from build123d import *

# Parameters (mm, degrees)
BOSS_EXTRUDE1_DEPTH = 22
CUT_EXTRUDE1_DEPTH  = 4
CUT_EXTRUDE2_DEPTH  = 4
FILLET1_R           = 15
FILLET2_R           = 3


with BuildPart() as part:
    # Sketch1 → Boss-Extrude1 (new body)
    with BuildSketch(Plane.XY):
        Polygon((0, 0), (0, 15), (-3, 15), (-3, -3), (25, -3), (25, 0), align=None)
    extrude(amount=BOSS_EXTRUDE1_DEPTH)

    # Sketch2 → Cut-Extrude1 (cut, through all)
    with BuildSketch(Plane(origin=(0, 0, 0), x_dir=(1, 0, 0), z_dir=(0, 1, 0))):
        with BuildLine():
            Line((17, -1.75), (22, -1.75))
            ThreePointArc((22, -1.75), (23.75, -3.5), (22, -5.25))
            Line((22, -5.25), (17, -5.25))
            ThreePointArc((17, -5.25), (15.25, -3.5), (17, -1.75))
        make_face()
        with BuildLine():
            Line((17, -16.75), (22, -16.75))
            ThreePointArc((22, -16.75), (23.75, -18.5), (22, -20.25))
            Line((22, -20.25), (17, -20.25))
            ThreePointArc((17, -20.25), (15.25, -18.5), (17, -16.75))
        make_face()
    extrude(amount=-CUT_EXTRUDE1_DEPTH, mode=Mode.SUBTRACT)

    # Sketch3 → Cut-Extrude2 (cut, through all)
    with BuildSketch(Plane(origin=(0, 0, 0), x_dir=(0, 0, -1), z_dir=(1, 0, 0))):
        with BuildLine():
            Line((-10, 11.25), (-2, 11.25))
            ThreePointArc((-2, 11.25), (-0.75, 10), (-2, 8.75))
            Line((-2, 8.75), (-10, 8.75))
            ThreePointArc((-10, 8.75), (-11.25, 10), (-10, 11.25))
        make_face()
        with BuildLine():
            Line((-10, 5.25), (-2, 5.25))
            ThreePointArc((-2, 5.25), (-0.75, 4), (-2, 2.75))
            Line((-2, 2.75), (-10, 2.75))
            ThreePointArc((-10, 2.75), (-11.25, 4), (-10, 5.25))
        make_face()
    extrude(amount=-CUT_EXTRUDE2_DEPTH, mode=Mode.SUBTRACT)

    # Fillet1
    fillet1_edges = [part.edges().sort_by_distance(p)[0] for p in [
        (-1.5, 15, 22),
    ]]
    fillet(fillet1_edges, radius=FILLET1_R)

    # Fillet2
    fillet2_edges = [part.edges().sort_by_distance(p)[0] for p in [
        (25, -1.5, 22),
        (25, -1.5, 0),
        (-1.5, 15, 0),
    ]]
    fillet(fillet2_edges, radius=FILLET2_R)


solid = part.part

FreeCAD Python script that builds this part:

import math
import FreeCAD as App
import Part
import Sketcher


def edges_at(feature, points):
    """Names of the edges that pass closest to the given points."""
    edges = feature.Shape.Edges
    near = lambda p: min(range(len(edges)), key=lambda i: edges[i].distToShape(Part.Vertex(*p))[0])
    return sorted({f"Edge{near(p) + 1}" for p in points})


def add_polygon(sketch, points):
    """Adds a closed chain of lines whose ends are joined by coincident constraints."""
    first, n = sketch.GeometryCount, len(points)
    for a, b in zip(points, points[1:] + points[:1]):
        sketch.addGeometry(Part.LineSegment(App.Vector(*a, 0), App.Vector(*b, 0)), False)
    for i in range(n):
        sketch.addConstraint(Sketcher.Constraint("Coincident", first + i, 2, first + (i + 1) % n, 1))

doc = App.newDocument("Part")
body = doc.addObject("PartDesign::Body", "Body")

# Sketch on XY plane
sketch1 = body.newObject("Sketcher::SketchObject", "Sketch")
sketch1.AttachmentSupport = (doc.getObject("XY_Plane"), [""])
sketch1.MapMode = "FlatFace"
add_polygon(sketch1, [(0, 0), (0, 15), (-3, 15), (-3, -3), (25, -3), (25, 0)])  # lines 0-5
sketch1.addConstraint([
    Sketcher.Constraint("Vertical", 0),
    Sketcher.Constraint("Horizontal", 1),
    Sketcher.Constraint("Vertical", 2),
    Sketcher.Constraint("Horizontal", 3),
    Sketcher.Constraint("Vertical", 4),
    Sketcher.Constraint("Horizontal", 5),
    Sketcher.Constraint("Coincident", 5, 2, -1, 1),
    Sketcher.Constraint("Equal", 1, 4),
    Sketcher.Constraint("DistanceX", 1, 2, 1, 1, 3.0),
    Sketcher.Constraint("DistanceX", 3, 1, 3, 2, 28.0),
    Sketcher.Constraint("DistanceY", 0, 1, 0, 2, 15.0),
])
pad1 = body.newObject("PartDesign::Pad", "Pad")
pad1.Profile = sketch1
pad1.Length = 22

# Sketch on XZ plane
sketch2 = body.newObject("Sketcher::SketchObject", "Sketch001")
sketch2.AttachmentSupport = (doc.getObject("XZ_Plane"), [""])
sketch2.MapMode = "FlatFace"
sketch2.addGeometry([
    Part.LineSegment(App.Vector(22, 1.8, 0), App.Vector(17, 1.8, 0)),  # 0
    Part.ArcOfCircle(Part.Circle(App.Vector(17, 3.5, 0), App.Vector(0, 0, 1), 1.8), math.radians(90), math.radians(270)),  # 1
    Part.LineSegment(App.Vector(17, 5.2, 0), App.Vector(22, 5.2, 0)),  # 2
    Part.ArcOfCircle(Part.Circle(App.Vector(22, 3.5, 0), App.Vector(0, 0, 1), 1.8), math.radians(-90), math.radians(90)),  # 3
    Part.LineSegment(App.Vector(22, 16.8, 0), App.Vector(17, 16.8, 0)),  # 4
    Part.ArcOfCircle(Part.Circle(App.Vector(17, 18.5, 0), App.Vector(0, 0, 1), 1.8), math.radians(90), math.radians(270)),  # 5
    Part.LineSegment(App.Vector(17, 20.2, 0), App.Vector(22, 20.2, 0)),  # 6
    Part.ArcOfCircle(Part.Circle(App.Vector(22, 18.5, 0), App.Vector(0, 0, 1), 1.8), math.radians(-90), math.radians(90)),  # 7
], False)
sketch2.addConstraint([
    Sketcher.Constraint("Tangent", 0, 2, 1, 2),
    Sketcher.Constraint("Tangent", 1, 1, 2, 1),
    Sketcher.Constraint("Tangent", 2, 2, 3, 2),
    Sketcher.Constraint("Tangent", 3, 1, 0, 1),
    Sketcher.Constraint("Tangent", 4, 2, 5, 2),
    Sketcher.Constraint("Tangent", 5, 1, 6, 1),
    Sketcher.Constraint("Tangent", 6, 2, 7, 2),
    Sketcher.Constraint("Tangent", 7, 1, 4, 1),
    Sketcher.Constraint("Horizontal", 0),
    Sketcher.Constraint("Horizontal", 2),
    Sketcher.Constraint("Horizontal", 4),
    Sketcher.Constraint("Horizontal", 6),
    Sketcher.Constraint("Equal", 3, 5),
    Sketcher.Constraint("Vertical", 1, 3, 5, 3),
    Sketcher.Constraint("Vertical", 3, 3, 7, 3),
    Sketcher.Constraint("DistanceX", 0, 2, 0, 1, 5.0),
    Sketcher.Constraint("Radius", 1, 1.75),
    Sketcher.Constraint("DistanceX", -1, 1, 1, 3, 17.0),
    Sketcher.Constraint("DistanceY", 1, 3, 5, 3, 15.0),
    Sketcher.Constraint("DistanceY", -1, 1, 1, 3, 3.5),
])
pocket1 = body.newObject("PartDesign::Pocket", "Pocket")
pocket1.Profile = sketch2
pocket1.Type = "ThroughAll"
pocket1.Reversed = True

# Sketch on YZ plane
sketch3 = body.newObject("Sketcher::SketchObject", "Sketch002")
sketch3.AttachmentSupport = (doc.getObject("YZ_Plane"), [""])
sketch3.MapMode = "FlatFace"
sketch3.addGeometry([
    Part.LineSegment(App.Vector(11.2, 2, 0), App.Vector(11.2, 10, 0)),  # 0
    Part.ArcOfCircle(Part.Circle(App.Vector(10, 10, 0), App.Vector(0, 0, 1), 1.2), math.radians(0), math.radians(180)),  # 1
    Part.LineSegment(App.Vector(8.8, 10, 0), App.Vector(8.8, 2, 0)),  # 2
    Part.ArcOfCircle(Part.Circle(App.Vector(10, 2, 0), App.Vector(0, 0, 1), 1.2), math.radians(180), math.radians(360)),  # 3
    Part.LineSegment(App.Vector(5.2, 2, 0), App.Vector(5.2, 10, 0)),  # 4
    Part.ArcOfCircle(Part.Circle(App.Vector(4, 10, 0), App.Vector(0, 0, 1), 1.2), math.radians(0), math.radians(180)),  # 5
    Part.LineSegment(App.Vector(2.8, 10, 0), App.Vector(2.8, 2, 0)),  # 6
    Part.ArcOfCircle(Part.Circle(App.Vector(4, 2, 0), App.Vector(0, 0, 1), 1.2), math.radians(180), math.radians(360)),  # 7
], False)
sketch3.addConstraint([
    Sketcher.Constraint("Tangent", 0, 2, 1, 1),
    Sketcher.Constraint("Tangent", 1, 2, 2, 1),
    Sketcher.Constraint("Tangent", 2, 2, 3, 1),
    Sketcher.Constraint("Tangent", 3, 2, 0, 1),
    Sketcher.Constraint("Tangent", 4, 2, 5, 1),
    Sketcher.Constraint("Tangent", 5, 2, 6, 1),
    Sketcher.Constraint("Tangent", 6, 2, 7, 1),
    Sketcher.Constraint("Tangent", 7, 2, 4, 1),
    Sketcher.Constraint("Vertical", 0),
    Sketcher.Constraint("Vertical", 2),
    Sketcher.Constraint("Vertical", 4),
    Sketcher.Constraint("Vertical", 6),
    Sketcher.Constraint("Equal", 3, 5),
    Sketcher.Constraint("Horizontal", 1, 3, 5, 3),
    Sketcher.Constraint("Horizontal", 3, 3, 7, 3),
    Sketcher.Constraint("DistanceY", 0, 1, 0, 2, 8.0),
    Sketcher.Constraint("Radius", 1, 1.25),
    Sketcher.Constraint("DistanceX", -1, 1, 1, 3, 10.0),
    Sketcher.Constraint("DistanceY", -1, 1, 1, 3, 10.0),
    Sketcher.Constraint("DistanceX", -1, 1, 5, 3, 4.0),
])
pocket2 = body.newObject("PartDesign::Pocket", "Pocket001")
pocket2.Profile = sketch3
pocket2.Type = "ThroughAll"
doc.recompute()

fillet = body.newObject("PartDesign::Fillet", "Fillet")
fillet.Base = (pocket2, edges_at(pocket2, [(-1.5, 15, 22)]))
fillet.Radius = 15
doc.recompute()

fillet2 = body.newObject("PartDesign::Fillet", "Fillet001")
fillet2.Base = (fillet, edges_at(fillet, [(25, -1.5, 22), (25, -1.5, 0), (-1.5, 15, 0)]))
fillet2.Radius = 3

doc.recompute()
